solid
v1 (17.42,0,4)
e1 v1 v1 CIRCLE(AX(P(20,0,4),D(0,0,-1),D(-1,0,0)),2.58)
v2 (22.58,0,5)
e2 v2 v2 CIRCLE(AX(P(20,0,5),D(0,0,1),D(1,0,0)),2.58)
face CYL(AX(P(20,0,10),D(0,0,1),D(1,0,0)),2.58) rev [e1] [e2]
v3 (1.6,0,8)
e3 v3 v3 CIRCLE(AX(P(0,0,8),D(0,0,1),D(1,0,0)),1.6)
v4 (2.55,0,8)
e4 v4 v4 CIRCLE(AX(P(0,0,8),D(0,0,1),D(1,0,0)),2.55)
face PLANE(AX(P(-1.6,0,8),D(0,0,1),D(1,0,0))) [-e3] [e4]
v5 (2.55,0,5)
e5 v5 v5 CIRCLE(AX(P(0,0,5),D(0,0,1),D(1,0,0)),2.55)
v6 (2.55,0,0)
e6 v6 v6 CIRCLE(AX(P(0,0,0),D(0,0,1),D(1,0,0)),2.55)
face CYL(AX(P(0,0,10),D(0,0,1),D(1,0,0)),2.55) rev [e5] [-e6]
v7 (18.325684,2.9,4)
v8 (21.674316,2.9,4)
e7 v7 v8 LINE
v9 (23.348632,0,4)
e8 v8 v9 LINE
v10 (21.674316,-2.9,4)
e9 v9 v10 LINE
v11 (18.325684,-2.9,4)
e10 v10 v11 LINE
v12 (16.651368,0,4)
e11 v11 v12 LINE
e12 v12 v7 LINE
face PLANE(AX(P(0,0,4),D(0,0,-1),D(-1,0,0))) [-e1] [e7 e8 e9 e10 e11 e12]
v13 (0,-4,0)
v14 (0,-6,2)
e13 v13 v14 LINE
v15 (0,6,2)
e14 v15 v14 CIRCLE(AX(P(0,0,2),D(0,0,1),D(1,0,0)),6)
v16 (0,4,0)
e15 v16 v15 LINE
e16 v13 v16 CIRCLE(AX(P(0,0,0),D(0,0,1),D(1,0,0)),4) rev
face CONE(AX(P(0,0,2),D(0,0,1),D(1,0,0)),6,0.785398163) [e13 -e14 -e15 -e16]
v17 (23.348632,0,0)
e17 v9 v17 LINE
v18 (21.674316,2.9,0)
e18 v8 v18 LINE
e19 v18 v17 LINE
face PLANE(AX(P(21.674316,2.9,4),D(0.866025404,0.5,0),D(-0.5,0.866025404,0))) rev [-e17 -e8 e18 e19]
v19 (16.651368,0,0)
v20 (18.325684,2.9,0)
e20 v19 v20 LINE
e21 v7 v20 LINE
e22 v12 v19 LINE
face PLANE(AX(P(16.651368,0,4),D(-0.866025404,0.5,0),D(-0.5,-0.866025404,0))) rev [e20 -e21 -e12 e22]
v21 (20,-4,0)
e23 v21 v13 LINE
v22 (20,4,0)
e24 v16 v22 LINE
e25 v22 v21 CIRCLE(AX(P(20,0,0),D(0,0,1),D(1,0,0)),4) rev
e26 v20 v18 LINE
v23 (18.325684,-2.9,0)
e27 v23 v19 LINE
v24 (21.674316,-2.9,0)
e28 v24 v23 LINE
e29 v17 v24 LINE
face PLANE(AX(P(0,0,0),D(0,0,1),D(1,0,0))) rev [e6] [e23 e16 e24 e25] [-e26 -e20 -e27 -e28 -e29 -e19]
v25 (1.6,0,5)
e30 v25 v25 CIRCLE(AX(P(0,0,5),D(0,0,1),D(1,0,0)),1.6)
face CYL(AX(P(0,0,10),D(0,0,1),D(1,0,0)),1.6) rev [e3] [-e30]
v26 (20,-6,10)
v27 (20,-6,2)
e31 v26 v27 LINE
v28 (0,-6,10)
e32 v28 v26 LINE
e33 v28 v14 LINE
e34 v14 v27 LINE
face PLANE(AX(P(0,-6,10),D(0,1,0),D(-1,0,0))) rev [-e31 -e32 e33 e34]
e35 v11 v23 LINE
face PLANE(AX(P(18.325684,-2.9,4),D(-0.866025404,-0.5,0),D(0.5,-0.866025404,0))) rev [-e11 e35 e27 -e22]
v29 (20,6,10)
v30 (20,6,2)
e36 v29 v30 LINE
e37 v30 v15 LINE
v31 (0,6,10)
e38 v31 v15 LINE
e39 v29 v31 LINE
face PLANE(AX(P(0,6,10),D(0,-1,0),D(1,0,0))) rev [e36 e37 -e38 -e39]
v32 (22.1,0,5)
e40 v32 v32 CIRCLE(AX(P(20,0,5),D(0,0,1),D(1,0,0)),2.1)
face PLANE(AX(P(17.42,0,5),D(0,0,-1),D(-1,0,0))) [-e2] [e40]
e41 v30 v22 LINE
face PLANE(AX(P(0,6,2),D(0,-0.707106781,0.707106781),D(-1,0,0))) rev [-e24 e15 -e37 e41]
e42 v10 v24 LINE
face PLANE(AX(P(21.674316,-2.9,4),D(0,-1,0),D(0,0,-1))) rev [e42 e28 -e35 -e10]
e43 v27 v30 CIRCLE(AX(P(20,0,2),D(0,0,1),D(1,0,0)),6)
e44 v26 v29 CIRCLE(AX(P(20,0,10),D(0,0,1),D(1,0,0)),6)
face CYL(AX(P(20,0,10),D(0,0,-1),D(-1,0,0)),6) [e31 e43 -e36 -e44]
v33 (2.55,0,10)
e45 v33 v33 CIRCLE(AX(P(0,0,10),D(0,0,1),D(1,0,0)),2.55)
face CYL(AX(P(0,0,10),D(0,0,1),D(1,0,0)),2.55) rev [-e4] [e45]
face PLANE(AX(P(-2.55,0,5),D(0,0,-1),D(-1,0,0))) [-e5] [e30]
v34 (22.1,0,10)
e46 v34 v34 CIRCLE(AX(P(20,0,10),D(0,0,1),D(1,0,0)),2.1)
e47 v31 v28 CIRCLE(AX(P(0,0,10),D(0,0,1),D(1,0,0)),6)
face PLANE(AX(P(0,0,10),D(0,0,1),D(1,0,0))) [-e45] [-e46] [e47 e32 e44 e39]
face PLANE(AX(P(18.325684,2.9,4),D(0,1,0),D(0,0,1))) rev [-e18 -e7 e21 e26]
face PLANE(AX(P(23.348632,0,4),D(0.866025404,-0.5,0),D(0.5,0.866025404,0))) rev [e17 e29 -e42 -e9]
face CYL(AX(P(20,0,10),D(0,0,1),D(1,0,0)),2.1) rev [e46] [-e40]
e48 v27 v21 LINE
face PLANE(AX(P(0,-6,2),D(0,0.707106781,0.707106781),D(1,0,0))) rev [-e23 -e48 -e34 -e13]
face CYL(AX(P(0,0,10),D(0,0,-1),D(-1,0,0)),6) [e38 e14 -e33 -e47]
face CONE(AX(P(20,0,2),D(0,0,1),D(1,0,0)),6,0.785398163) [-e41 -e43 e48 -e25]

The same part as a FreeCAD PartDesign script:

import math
import FreeCAD as App
import Part
import Sketcher
Q = App.Units.Quantity


def edges_at(feature, points):
    """Names of the edges that pass closest to the given points."""
    edges = feature.Shape.Edges
    near = lambda p: min(range(len(edges)), key=lambda i: edges[i].distToShape(Part.Vertex(*p))[0])
    return sorted({f"Edge{near(p) + 1}" for p in points})


def add_polygon(sketch, points):
    """Adds a closed chain of lines whose ends are joined by coincident constraints."""
    first, n = sketch.GeometryCount, len(points)
    for a, b in zip(points, points[1:] + points[:1]):
        sketch.addGeometry(Part.LineSegment(App.Vector(*a, 0), App.Vector(*b, 0)), False)
    for i in range(n):
        sketch.addConstraint(Sketcher.Constraint("Coincident", first + i, 2, first + (i + 1) % n, 1))

doc = App.newDocument("Part")
params = doc.addObject("Spreadsheet::Sheet", "Params")
for row, (alias, value) in enumerate([
    ("sketch1_radius", "6 mm"),
    ("sketch1_width", "20 mm"),
    ("pad1_length", "10 mm"),
    ("sketch2_height", "5 mm"),
    ("sketch2_height2", "3 mm"),
    ("sketch2_height3", "2 mm"),
    ("sketch2_width", "2.55 mm"),
    ("sketch2_width2", "0.95 mm"),
    ("groove_angle", "360 deg"),
    ("sketch3_height", "5 mm"),
    ("sketch3_width", "2.1 mm"),
    ("sketch3_width2", "2.58 mm"),
    ("groove2_angle", "360 deg"),
    ("chamfer_size", "2 mm"),
    ("pocket1_length", "4 mm"),
], start=1):
    params.set(f"A{row}", alias)
    params.set(f"B{row}", "=" + value)
    params.setAlias(f"B{row}", alias)

body = doc.addObject("PartDesign::Body", "Body")

# Sketch on XY plane
sketch1 = body.newObject("Sketcher::SketchObject", "Sketch")
sketch1.AttachmentSupport = (doc.getObject("XY_Plane"), [""])
sketch1.MapMode = "FlatFace"
sketch1.addGeometry(Part.LineSegment(App.Vector(20, 6, 0), App.Vector(0, 6, 0)), False)
sketch1.addGeometry(Part.ArcOfCircle(Part.Circle(App.Vector(0, 0, 0), App.Vector(0, 0, 1), 6), math.radians(90), math.radians(270)), False)
sketch1.addGeometry(Part.LineSegment(App.Vector(0, -6, 0), App.Vector(20, -6, 0)), False)
sketch1.addGeometry(Part.ArcOfCircle(Part.Circle(App.Vector(20, 0, 0), App.Vector(0, 0, 1), 6), math.radians(-90), math.radians(90)), False)
sketch1.addConstraint(Sketcher.Constraint("Tangent", 0, 2, 1, 1))
sketch1.addConstraint(Sketcher.Constraint("Tangent", 1, 2, 2, 1))
sketch1.addConstraint(Sketcher.Constraint("Tangent", 2, 2, 3, 1))
sketch1.addConstraint(Sketcher.Constraint("Tangent", 3, 2, 0, 1))
sketch1.addConstraint(Sketcher.Constraint("Horizontal", 0))
sketch1.addConstraint(Sketcher.Constraint("Horizontal", 2))
sketch1.addConstraint(Sketcher.Constraint("Coincident", 1, 3, -1, 1))
sketch1.addConstraint(Sketcher.Constraint("Radius", 1, 6.0))
sketch1.addConstraint(Sketcher.Constraint("DistanceX", 0, 2, 0, 1, 20.0))
sketch1.setExpression("Constraints[7]", "Params.sketch1_radius")
sketch1.setExpression("Constraints[8]", "Params.sketch1_width")
pad1 = body.newObject("PartDesign::Pad", "Pad")
pad1.Profile = sketch1
pad1.setExpression("Length", "Params.pad1_length")

# Sketch on XZ plane
sketch2 = body.newObject("Sketcher::SketchObject", "Sketch001")
sketch2.AttachmentSupport = (doc.getObject("XZ_Plane"), [""])
sketch2.MapMode = "FlatFace"
add_polygon(sketch2, [(0, 0), (-2.5, 0), (-2.5, 5), (-1.6, 5), (-1.6, 8), (-2.5, 8), (-2.5, 10), (0, 10)])  # lines 0-7
sketch2.addConstraint(Sketcher.Constraint("Horizontal", 0))
sketch2.addConstraint(Sketcher.Constraint("Vertical", 1))
sketch2.addConstraint(Sketcher.Constraint("Horizontal", 2))
sketch2.addConstraint(Sketcher.Constraint("Vertical", 3))
sketch2.addConstraint(Sketcher.Constraint("Horizontal", 4))
sketch2.addConstraint(Sketcher.Constraint("Vertical", 5))
sketch2.addConstraint(Sketcher.Constraint("Horizontal", 6))
sketch2.addConstraint(Sketcher.Constraint("Vertical", 7))
sketch2.addConstraint(Sketcher.Constraint("Coincident", 7, 2, -1, 1))
sketch2.addConstraint(Sketcher.Constraint("Vertical", 1, 2, 4, 2))
sketch2.addConstraint(Sketcher.Constraint("DistanceY", 1, 1, 1, 2, 5.0))
sketch2.addConstraint(Sketcher.Constraint("DistanceY", 3, 1, 3, 2, 3.0))
sketch2.addConstraint(Sketcher.Constraint("DistanceY", 5, 1, 5, 2, 2.0))
sketch2.addConstraint(Sketcher.Constraint("DistanceX", 0, 2, 0, 1, 2.55))
sketch2.addConstraint(Sketcher.Constraint("DistanceX", 2, 1, 2, 2, 0.95))
sketch2.setExpression("Constraints[18]", "Params.sketch2_height")
sketch2.setExpression("Constraints[19]", "Params.sketch2_height2")
sketch2.setExpression("Constraints[20]", "Params.sketch2_height3")
sketch2.setExpression("Constraints[21]", "Params.sketch2_width")
sketch2.setExpression("Constraints[22]", "Params.sketch2_width2")
groove = body.newObject("PartDesign::Groove", "Groove")
groove.Profile = sketch2
groove.ReferenceAxis = (sketch2, ["V_Axis"])
groove.setExpression("Angle", "Params.groove_angle")

# Sketch on XZ plane
sketch3 = body.newObject("Sketcher::SketchObject", "Sketch002")
sketch3.AttachmentSupport = (doc.getObject("XZ_Plane"), [""])
sketch3.MapMode = "FlatFace"
add_polygon(sketch3, [(20, 0), (17.42, 0), (17.42, 5), (17.9, 5), (17.9, 10), (20, 10)])  # lines 0-5
sketch3.addGeometry(Part.LineSegment(App.Vector(20, 10, 0), App.Vector(20, 0, 0)), True)  # axis
sketch3.addConstraint(Sketcher.Constraint("Horizontal", 0))
sketch3.addConstraint(Sketcher.Constraint("Vertical", 1))
sketch3.addConstraint(Sketcher.Constraint("Horizontal", 2))
sketch3.addConstraint(Sketcher.Constraint("Vertical", 3))
sketch3.addConstraint(Sketcher.Constraint("Horizontal", 4))
sketch3.addConstraint(Sketcher.Constraint("Vertical", 5))
sketch3.addConstraint(Sketcher.Constraint("Vertical", 6))
sketch3.addConstraint(Sketcher.Constraint("Coincident", 6, 1, 4, 2))
sketch3.addConstraint(Sketcher.Constraint("PointOnObject", 0, 2, -1))
sketch3.addConstraint(Sketcher.Constraint("PointOnObject", 6, 2, -1))
sketch3.addConstraint(Sketcher.Constraint("Equal", 1, 3))
sketch3.addConstraint(Sketcher.Constraint("DistanceY", 1, 1, 1, 2, 5.0))
sketch3.addConstraint(Sketcher.Constraint("DistanceX", 4, 1, 4, 2, 2.1))
sketch3.addConstraint(Sketcher.Constraint("DistanceX", -1, 1, 4, 2, 20.0))
sketch3.addConstraint(Sketcher.Constraint("DistanceX", 0, 2, 0, 1, 2.58))
sketch3.setExpression("Constraints[17]", "Params.sketch3_height")
sketch3.setExpression("Constraints[18]", "Params.sketch3_width")
sketch3.setExpression("Constraints[20]", "Params.sketch3_width2")
groove2 = body.newObject("PartDesign::Groove", "Groove001")
groove2.Profile = sketch3
groove2.ReferenceAxis = (sketch3, ["Axis0"])
groove2.setExpression("Angle", "Params.groove2_angle")
doc.recompute()

chamfer = body.newObject("PartDesign::Chamfer", "Chamfer")
chamfer.Base = (groove2, edges_at(groove2, [
    (10, 6, 0),
    (26, 0, 0),
    (10, -6, 0),
    (-6, 0, 0),
]))
chamfer.setExpression("Size", "Params.chamfer_size")

# Sketch on XY plane
sketch4 = body.newObject("Sketcher::SketchObject", "Sketch003")
sketch4.AttachmentSupport = (doc.getObject("XY_Plane"), [""])
sketch4.MapMode = "FlatFace"
add_polygon(sketch4, [(23.3, 0), (21.7, -2.9), (18.3, -2.9), (16.7, 0), (18.3, 2.9), (21.7, 2.9)])  # lines 0-5
sketch4.addConstraint(Sketcher.Constraint("Horizontal", 1))
sketch4.addConstraint(Sketcher.Constraint("Horizontal", 4))
sketch4.addConstraint(Sketcher.Constraint("Symmetric", 1, 2, 3, 2, -1))
sketch4.addConstraint(Sketcher.Constraint("PointOnObject", 2, 2, -1))
sketch4.addConstraint(Sketcher.Constraint("PointOnObject", 5, 2, -1))
sketch4.addConstraint(Sketcher.Constraint("Parallel", 0, 3))
sketch4.addConstraint(Sketcher.Constraint("Parallel", 2, 5))
sketch4.addConstraint(Sketcher.Constraint("Angle", 0, Q("-120 deg")))
sketch4.addConstraint(Sketcher.Constraint("DistanceY", 0, 2, -1, 1, 2.9))
sketch4.addConstraint(Sketcher.Constraint("DistanceX", 1, 2, 1, 1, 3.348632))
sketch4.addConstraint(Sketcher.Constraint("DistanceX", -1, 1, 2, 2, 16.651368))
pocket1 = body.newObject("PartDesign::Pocket", "Pocket")
pocket1.Profile = sketch4
pocket1.setExpression("Length", "Params.pocket1_length")
pocket1.Reversed = True

doc.recompute()
